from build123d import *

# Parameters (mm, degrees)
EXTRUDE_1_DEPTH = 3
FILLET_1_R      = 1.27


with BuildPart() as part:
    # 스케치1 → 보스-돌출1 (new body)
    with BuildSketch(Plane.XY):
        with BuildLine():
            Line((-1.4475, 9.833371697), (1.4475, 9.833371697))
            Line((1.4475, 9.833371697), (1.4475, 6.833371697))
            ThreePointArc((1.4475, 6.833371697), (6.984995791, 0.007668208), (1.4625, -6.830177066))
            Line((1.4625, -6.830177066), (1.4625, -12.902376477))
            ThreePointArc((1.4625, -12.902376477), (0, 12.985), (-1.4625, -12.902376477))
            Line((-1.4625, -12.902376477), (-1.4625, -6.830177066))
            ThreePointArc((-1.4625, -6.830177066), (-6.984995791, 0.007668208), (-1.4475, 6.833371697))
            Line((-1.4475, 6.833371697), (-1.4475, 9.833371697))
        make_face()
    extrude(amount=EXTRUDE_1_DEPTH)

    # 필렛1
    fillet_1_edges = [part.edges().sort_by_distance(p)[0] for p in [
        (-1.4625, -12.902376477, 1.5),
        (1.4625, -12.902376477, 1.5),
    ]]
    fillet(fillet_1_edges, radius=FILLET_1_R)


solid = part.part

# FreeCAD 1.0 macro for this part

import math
import FreeCAD as App
import Part
import Sketcher

V = App.Vector
Q = App.Units.Quantity


def edges_at(feature, points):
    """Names of the edges that pass closest to the given points."""
    edges = feature.Shape.Edges
    near = lambda p: min(range(len(edges)), key=lambda i: edges[i].distToShape(Part.Vertex(*p))[0])
    return sorted({f"Edge{near(p) + 1}" for p in points})

doc = App.newDocument("Part")
body = doc.addObject("PartDesign::Body", "Body")

# Sketch on XY plane
sketch1 = body.newObject("Sketcher::SketchObject", "Sketch")
sketch1.AttachmentSupport = (doc.getObject("XY_Plane"), [""])
sketch1.MapMode = "FlatFace"
sketch1.addGeometry(Part.LineSegment(V(-1.4, 9.8, 0), V(1.4, 9.8, 0)), False)
sketch1.addGeometry(Part.LineSegment(V(1.4, 9.8, 0), V(1.4, 6.8, 0)), False)
sketch1.addGeometry(Part.ArcOfCircle(Part.Circle(V(0, 0, 0), V(0, 0, 1), 7), math.radians(-78), math.radians(78)), False)
sketch1.addGeometry(Part.LineSegment(V(1.5, -6.8, 0), V(1.5, -12.9, 0)), False)
sketch1.addGeometry(Part.ArcOfCircle(Part.Circle(V(0, 0, 0), V(0, 0, 1), 13), math.radians(-84), math.radians(264)), False)
sketch1.addGeometry(Part.LineSegment(V(-1.5, -12.9, 0), V(-1.5, -6.8, 0)), False)
sketch1.addGeometry(Part.ArcOfCircle(Part.Circle(V(0, 0, 0), V(0, 0, 1), 7), math.radians(102), math.radians(258)), False)
sketch1.addGeometry(Part.LineSegment(V(-1.4, 6.8, 0), V(-1.4, 9.8, 0)), False)
sketch1.addConstraint(Sketcher.Constraint("Coincident", 0, 2, 1, 1))
sketch1.addConstraint(Sketcher.Constraint("Coincident", 1, 2, 2, 2))
sketch1.addConstraint(Sketcher.Constraint("Coincident", 2, 1, 3, 1))
sketch1.addConstraint(Sketcher.Constraint("Coincident", 3, 2, 4, 1))
sketch1.addConstraint(Sketcher.Constraint("Coincident", 4, 2, 5, 1))
sketch1.addConstraint(Sketcher.Constraint("Coincident", 5, 2, 6, 2))
sketch1.addConstraint(Sketcher.Constraint("Coincident", 6, 1, 7, 1))
sketch1.addConstraint(Sketcher.Constraint("Coincident", 7, 2, 0, 1))
sketch1.addConstraint(Sketcher.Constraint("Horizontal", 0))
sketch1.addConstraint(Sketcher.Constraint("Vertical", 1))
sketch1.addConstraint(Sketcher.Constraint("Vertical", 3))
sketch1.addConstraint(Sketcher.Constraint("Vertical", 5))
sketch1.addConstraint(Sketcher.Constraint("Vertical", 7))
sketch1.addConstraint(Sketcher.Constraint("Coincident", 2, 3, -1, 1))
sketch1.addConstraint(Sketcher.Constraint("Coincident", 4, 3, -1, 1))
sketch1.addConstraint(Sketcher.Constraint("Coincident", 6, 3, -1, 1))
sketch1.addConstraint(Sketcher.Constraint("Equal", 2, 6))
sketch1.addConstraint(Sketcher.Constraint("Horizontal", 3, 2, 4, 2))
sketch1.addConstraint(Sketcher.Constraint("Horizontal", 1, 2, 6, 1))
sketch1.addConstraint(Sketcher.Constraint("Radius", 2, Q("0.275 in")))
sketch1.addConstraint(Sketcher.Constraint("Radius", 4, Q("12.985 mm")))
sketch1.addConstraint(Sketcher.Constraint("DistanceX", 0, 1, 0, 2, Q("2.895 mm")))
sketch1.addConstraint(Sketcher.Constraint("DistanceY", 1, 2, 1, 1, Q("3 mm")))
sketch1.addConstraint(Sketcher.Constraint("DistanceY", 3, 2, 3, 1, Q("6.072199 mm")))
pad1 = body.newObject("PartDesign::Pad", "Pad")
pad1.Profile = sketch1
pad1.Length = 3
doc.recompute()

fillet = body.newObject("PartDesign::Fillet", "Fillet")
fillet.Base = (pad1, edges_at(pad1, [(-1.462, -12.902, 1.5), (1.462, -12.902, 1.5)]))
fillet.Radius = Q("0.05 in")

doc.recompute()
